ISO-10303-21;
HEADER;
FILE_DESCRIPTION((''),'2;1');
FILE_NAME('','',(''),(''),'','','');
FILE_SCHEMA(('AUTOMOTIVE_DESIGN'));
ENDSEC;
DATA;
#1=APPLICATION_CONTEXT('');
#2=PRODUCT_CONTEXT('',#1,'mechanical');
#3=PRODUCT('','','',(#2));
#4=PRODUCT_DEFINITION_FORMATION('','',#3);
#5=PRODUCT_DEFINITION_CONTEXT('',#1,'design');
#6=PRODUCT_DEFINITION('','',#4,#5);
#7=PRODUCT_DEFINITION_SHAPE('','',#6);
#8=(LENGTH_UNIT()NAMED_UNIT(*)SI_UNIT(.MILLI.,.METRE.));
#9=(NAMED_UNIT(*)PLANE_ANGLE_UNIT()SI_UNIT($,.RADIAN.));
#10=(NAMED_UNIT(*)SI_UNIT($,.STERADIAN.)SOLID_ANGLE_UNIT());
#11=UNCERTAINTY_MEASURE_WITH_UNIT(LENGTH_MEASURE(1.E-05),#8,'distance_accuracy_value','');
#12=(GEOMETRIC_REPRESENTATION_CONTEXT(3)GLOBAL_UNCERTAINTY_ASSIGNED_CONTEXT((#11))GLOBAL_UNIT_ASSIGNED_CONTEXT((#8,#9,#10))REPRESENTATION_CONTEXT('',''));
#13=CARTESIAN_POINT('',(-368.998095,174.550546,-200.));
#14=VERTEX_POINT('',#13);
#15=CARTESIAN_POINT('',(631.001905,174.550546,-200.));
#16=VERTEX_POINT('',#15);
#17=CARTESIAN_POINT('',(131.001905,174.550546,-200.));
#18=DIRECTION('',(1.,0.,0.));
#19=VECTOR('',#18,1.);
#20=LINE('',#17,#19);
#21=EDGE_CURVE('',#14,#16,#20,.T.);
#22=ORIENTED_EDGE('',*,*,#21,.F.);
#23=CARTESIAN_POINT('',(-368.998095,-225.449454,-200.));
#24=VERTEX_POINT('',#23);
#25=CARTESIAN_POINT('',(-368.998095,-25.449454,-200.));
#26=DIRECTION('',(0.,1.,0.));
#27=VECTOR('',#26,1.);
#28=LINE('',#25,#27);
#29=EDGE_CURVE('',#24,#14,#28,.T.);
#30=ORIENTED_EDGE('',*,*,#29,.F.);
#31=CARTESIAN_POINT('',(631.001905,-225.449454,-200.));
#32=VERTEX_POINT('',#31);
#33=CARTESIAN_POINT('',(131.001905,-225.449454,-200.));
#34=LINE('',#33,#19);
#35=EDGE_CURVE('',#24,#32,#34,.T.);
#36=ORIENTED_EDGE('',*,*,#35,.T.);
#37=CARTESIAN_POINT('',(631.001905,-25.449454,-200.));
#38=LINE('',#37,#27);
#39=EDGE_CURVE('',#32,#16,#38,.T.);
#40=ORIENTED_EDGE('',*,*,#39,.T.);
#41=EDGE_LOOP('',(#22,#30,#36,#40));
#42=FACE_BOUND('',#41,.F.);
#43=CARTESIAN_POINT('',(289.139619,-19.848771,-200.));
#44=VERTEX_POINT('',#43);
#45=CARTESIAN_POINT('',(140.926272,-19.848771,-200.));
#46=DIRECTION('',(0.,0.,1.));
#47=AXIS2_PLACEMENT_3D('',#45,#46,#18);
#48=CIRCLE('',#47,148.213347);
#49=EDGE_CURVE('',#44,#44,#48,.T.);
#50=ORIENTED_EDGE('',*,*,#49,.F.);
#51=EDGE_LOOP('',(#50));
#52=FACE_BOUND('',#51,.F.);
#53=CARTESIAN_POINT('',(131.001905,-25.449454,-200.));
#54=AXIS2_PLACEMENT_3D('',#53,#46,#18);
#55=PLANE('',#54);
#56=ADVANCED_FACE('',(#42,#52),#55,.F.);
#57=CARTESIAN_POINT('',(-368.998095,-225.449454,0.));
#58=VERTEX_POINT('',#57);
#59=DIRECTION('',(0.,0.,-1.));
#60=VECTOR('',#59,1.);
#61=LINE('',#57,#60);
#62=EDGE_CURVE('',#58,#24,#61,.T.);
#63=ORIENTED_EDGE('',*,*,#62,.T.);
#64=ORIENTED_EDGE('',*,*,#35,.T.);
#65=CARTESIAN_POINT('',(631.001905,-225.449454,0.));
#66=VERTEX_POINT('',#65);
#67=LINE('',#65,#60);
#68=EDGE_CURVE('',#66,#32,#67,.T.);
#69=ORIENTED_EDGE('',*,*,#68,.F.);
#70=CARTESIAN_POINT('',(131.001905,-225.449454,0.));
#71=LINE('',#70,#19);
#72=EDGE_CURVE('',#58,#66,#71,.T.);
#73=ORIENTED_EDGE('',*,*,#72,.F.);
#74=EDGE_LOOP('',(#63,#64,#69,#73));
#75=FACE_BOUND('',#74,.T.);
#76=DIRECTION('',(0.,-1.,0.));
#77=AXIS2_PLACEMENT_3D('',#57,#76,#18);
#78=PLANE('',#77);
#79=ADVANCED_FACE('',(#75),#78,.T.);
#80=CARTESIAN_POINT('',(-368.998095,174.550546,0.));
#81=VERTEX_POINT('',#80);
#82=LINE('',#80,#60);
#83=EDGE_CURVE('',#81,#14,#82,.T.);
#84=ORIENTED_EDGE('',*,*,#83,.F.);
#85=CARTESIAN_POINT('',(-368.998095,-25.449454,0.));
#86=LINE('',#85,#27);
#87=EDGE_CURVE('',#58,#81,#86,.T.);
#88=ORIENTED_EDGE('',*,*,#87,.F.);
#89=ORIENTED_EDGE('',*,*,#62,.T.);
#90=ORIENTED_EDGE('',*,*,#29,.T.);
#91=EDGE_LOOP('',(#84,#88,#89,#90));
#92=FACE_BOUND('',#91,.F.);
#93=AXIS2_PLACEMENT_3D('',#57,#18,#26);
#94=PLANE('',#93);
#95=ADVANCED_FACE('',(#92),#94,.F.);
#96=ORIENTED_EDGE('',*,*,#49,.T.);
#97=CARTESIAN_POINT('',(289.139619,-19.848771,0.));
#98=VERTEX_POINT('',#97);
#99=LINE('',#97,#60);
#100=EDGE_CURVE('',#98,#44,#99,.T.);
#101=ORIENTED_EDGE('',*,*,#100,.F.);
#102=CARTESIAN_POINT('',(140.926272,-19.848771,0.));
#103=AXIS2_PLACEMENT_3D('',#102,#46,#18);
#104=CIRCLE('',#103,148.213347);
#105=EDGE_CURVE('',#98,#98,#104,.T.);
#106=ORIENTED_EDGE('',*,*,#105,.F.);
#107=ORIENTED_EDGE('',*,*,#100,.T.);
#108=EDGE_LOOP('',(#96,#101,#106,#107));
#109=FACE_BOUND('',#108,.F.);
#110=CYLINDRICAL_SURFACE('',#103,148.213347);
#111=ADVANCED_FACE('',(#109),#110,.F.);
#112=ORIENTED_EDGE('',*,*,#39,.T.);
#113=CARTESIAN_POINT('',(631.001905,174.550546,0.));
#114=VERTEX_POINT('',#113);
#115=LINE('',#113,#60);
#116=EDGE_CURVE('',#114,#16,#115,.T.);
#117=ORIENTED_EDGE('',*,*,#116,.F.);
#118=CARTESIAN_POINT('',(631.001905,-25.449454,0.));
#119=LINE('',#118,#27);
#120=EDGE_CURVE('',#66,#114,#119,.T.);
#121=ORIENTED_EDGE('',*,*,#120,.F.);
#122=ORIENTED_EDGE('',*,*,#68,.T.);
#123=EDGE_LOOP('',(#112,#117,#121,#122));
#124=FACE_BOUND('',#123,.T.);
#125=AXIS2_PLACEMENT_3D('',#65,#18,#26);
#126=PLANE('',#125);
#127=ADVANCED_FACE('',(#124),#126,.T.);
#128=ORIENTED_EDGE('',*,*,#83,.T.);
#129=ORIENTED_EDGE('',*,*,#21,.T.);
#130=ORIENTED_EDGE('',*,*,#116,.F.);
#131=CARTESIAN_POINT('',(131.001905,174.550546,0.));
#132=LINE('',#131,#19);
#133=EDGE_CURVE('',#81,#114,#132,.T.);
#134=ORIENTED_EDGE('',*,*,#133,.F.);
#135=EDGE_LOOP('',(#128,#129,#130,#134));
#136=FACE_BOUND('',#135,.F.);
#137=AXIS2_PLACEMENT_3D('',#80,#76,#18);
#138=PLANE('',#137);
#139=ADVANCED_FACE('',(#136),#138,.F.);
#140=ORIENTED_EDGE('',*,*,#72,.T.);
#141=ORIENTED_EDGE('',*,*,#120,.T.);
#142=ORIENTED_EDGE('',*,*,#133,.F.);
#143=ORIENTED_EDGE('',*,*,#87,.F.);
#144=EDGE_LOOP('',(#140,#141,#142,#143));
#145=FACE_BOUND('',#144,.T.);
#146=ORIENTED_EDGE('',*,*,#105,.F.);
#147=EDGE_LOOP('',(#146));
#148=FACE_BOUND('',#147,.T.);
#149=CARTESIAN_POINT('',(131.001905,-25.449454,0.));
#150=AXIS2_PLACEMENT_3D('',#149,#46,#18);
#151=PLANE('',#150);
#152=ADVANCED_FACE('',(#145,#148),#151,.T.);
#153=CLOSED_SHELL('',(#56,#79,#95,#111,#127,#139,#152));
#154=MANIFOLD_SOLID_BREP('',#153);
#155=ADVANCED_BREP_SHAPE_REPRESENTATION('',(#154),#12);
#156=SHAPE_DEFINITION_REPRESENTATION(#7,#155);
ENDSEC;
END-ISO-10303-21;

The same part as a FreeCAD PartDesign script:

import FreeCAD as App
import Part
import Sketcher
from FreeCAD import Vector
Q = App.Units.Quantity

doc = App.newDocument("Part")
body = doc.addObject("PartDesign::Body", "Body")

sketch1 = body.newObject("Sketcher::SketchObject", "Sketch")
sketch1.AttachmentSupport = (doc.getObject("XY_Plane"), [""])
sketch1.MapMode = "FlatFace"
sketch1.addGeometry([
    Part.LineSegment(Vector(-369, 175, 0), Vector(-369, -225, 0)),
    Part.LineSegment(Vector(-369, -225, 0), Vector(631, -225, 0)),
    Part.LineSegment(Vector(631, -225, 0), Vector(631, 175, 0)),
    Part.LineSegment(Vector(631, 175, 0), Vector(-369, 175, 0)),
    Part.Circle(Vector(141, -20, 0), Vector(0, 0, 1), 148),
], False)
sketch1.addConstraint([
    Sketcher.Constraint("Coincident", 0, 2, 1, 1),
    Sketcher.Constraint("Coincident", 1, 2, 2, 1),
    Sketcher.Constraint("Coincident", 2, 2, 3, 1),
    Sketcher.Constraint("Coincident", 3, 2, 0, 1),
    Sketcher.Constraint("Vertical", 0),
    Sketcher.Constraint("Horizontal", 1),
    Sketcher.Constraint("Vertical", 2),
    Sketcher.Constraint("Horizontal", 3),
    Sketcher.Constraint("DistanceX", 1, 1, 1, 2, Q("1000 mm")),
    Sketcher.Constraint("DistanceY", 0, 2, 0, 1, Q("400 mm")),
    Sketcher.Constraint("Diameter", 4, Q("296.426694 mm")),
    Sketcher.Constraint("DistanceY", 4, 3, -1, 1, Q("19.848771 mm")),
    Sketcher.Constraint("DistanceX", -1, 1, 4, 3, Q("140.926272 mm")),
    Sketcher.Constraint("DistanceX", 0, 2, -1, 1, Q("368.998095 mm")),
    Sketcher.Constraint("DistanceY", 0, 2, -1, 1, Q("225.449454 mm")),
])
pad1 = body.newObject("PartDesign::Pad", "Pad")
pad1.Profile = sketch1
pad1.Length = 200
pad1.Reversed = True

doc.recompute()
